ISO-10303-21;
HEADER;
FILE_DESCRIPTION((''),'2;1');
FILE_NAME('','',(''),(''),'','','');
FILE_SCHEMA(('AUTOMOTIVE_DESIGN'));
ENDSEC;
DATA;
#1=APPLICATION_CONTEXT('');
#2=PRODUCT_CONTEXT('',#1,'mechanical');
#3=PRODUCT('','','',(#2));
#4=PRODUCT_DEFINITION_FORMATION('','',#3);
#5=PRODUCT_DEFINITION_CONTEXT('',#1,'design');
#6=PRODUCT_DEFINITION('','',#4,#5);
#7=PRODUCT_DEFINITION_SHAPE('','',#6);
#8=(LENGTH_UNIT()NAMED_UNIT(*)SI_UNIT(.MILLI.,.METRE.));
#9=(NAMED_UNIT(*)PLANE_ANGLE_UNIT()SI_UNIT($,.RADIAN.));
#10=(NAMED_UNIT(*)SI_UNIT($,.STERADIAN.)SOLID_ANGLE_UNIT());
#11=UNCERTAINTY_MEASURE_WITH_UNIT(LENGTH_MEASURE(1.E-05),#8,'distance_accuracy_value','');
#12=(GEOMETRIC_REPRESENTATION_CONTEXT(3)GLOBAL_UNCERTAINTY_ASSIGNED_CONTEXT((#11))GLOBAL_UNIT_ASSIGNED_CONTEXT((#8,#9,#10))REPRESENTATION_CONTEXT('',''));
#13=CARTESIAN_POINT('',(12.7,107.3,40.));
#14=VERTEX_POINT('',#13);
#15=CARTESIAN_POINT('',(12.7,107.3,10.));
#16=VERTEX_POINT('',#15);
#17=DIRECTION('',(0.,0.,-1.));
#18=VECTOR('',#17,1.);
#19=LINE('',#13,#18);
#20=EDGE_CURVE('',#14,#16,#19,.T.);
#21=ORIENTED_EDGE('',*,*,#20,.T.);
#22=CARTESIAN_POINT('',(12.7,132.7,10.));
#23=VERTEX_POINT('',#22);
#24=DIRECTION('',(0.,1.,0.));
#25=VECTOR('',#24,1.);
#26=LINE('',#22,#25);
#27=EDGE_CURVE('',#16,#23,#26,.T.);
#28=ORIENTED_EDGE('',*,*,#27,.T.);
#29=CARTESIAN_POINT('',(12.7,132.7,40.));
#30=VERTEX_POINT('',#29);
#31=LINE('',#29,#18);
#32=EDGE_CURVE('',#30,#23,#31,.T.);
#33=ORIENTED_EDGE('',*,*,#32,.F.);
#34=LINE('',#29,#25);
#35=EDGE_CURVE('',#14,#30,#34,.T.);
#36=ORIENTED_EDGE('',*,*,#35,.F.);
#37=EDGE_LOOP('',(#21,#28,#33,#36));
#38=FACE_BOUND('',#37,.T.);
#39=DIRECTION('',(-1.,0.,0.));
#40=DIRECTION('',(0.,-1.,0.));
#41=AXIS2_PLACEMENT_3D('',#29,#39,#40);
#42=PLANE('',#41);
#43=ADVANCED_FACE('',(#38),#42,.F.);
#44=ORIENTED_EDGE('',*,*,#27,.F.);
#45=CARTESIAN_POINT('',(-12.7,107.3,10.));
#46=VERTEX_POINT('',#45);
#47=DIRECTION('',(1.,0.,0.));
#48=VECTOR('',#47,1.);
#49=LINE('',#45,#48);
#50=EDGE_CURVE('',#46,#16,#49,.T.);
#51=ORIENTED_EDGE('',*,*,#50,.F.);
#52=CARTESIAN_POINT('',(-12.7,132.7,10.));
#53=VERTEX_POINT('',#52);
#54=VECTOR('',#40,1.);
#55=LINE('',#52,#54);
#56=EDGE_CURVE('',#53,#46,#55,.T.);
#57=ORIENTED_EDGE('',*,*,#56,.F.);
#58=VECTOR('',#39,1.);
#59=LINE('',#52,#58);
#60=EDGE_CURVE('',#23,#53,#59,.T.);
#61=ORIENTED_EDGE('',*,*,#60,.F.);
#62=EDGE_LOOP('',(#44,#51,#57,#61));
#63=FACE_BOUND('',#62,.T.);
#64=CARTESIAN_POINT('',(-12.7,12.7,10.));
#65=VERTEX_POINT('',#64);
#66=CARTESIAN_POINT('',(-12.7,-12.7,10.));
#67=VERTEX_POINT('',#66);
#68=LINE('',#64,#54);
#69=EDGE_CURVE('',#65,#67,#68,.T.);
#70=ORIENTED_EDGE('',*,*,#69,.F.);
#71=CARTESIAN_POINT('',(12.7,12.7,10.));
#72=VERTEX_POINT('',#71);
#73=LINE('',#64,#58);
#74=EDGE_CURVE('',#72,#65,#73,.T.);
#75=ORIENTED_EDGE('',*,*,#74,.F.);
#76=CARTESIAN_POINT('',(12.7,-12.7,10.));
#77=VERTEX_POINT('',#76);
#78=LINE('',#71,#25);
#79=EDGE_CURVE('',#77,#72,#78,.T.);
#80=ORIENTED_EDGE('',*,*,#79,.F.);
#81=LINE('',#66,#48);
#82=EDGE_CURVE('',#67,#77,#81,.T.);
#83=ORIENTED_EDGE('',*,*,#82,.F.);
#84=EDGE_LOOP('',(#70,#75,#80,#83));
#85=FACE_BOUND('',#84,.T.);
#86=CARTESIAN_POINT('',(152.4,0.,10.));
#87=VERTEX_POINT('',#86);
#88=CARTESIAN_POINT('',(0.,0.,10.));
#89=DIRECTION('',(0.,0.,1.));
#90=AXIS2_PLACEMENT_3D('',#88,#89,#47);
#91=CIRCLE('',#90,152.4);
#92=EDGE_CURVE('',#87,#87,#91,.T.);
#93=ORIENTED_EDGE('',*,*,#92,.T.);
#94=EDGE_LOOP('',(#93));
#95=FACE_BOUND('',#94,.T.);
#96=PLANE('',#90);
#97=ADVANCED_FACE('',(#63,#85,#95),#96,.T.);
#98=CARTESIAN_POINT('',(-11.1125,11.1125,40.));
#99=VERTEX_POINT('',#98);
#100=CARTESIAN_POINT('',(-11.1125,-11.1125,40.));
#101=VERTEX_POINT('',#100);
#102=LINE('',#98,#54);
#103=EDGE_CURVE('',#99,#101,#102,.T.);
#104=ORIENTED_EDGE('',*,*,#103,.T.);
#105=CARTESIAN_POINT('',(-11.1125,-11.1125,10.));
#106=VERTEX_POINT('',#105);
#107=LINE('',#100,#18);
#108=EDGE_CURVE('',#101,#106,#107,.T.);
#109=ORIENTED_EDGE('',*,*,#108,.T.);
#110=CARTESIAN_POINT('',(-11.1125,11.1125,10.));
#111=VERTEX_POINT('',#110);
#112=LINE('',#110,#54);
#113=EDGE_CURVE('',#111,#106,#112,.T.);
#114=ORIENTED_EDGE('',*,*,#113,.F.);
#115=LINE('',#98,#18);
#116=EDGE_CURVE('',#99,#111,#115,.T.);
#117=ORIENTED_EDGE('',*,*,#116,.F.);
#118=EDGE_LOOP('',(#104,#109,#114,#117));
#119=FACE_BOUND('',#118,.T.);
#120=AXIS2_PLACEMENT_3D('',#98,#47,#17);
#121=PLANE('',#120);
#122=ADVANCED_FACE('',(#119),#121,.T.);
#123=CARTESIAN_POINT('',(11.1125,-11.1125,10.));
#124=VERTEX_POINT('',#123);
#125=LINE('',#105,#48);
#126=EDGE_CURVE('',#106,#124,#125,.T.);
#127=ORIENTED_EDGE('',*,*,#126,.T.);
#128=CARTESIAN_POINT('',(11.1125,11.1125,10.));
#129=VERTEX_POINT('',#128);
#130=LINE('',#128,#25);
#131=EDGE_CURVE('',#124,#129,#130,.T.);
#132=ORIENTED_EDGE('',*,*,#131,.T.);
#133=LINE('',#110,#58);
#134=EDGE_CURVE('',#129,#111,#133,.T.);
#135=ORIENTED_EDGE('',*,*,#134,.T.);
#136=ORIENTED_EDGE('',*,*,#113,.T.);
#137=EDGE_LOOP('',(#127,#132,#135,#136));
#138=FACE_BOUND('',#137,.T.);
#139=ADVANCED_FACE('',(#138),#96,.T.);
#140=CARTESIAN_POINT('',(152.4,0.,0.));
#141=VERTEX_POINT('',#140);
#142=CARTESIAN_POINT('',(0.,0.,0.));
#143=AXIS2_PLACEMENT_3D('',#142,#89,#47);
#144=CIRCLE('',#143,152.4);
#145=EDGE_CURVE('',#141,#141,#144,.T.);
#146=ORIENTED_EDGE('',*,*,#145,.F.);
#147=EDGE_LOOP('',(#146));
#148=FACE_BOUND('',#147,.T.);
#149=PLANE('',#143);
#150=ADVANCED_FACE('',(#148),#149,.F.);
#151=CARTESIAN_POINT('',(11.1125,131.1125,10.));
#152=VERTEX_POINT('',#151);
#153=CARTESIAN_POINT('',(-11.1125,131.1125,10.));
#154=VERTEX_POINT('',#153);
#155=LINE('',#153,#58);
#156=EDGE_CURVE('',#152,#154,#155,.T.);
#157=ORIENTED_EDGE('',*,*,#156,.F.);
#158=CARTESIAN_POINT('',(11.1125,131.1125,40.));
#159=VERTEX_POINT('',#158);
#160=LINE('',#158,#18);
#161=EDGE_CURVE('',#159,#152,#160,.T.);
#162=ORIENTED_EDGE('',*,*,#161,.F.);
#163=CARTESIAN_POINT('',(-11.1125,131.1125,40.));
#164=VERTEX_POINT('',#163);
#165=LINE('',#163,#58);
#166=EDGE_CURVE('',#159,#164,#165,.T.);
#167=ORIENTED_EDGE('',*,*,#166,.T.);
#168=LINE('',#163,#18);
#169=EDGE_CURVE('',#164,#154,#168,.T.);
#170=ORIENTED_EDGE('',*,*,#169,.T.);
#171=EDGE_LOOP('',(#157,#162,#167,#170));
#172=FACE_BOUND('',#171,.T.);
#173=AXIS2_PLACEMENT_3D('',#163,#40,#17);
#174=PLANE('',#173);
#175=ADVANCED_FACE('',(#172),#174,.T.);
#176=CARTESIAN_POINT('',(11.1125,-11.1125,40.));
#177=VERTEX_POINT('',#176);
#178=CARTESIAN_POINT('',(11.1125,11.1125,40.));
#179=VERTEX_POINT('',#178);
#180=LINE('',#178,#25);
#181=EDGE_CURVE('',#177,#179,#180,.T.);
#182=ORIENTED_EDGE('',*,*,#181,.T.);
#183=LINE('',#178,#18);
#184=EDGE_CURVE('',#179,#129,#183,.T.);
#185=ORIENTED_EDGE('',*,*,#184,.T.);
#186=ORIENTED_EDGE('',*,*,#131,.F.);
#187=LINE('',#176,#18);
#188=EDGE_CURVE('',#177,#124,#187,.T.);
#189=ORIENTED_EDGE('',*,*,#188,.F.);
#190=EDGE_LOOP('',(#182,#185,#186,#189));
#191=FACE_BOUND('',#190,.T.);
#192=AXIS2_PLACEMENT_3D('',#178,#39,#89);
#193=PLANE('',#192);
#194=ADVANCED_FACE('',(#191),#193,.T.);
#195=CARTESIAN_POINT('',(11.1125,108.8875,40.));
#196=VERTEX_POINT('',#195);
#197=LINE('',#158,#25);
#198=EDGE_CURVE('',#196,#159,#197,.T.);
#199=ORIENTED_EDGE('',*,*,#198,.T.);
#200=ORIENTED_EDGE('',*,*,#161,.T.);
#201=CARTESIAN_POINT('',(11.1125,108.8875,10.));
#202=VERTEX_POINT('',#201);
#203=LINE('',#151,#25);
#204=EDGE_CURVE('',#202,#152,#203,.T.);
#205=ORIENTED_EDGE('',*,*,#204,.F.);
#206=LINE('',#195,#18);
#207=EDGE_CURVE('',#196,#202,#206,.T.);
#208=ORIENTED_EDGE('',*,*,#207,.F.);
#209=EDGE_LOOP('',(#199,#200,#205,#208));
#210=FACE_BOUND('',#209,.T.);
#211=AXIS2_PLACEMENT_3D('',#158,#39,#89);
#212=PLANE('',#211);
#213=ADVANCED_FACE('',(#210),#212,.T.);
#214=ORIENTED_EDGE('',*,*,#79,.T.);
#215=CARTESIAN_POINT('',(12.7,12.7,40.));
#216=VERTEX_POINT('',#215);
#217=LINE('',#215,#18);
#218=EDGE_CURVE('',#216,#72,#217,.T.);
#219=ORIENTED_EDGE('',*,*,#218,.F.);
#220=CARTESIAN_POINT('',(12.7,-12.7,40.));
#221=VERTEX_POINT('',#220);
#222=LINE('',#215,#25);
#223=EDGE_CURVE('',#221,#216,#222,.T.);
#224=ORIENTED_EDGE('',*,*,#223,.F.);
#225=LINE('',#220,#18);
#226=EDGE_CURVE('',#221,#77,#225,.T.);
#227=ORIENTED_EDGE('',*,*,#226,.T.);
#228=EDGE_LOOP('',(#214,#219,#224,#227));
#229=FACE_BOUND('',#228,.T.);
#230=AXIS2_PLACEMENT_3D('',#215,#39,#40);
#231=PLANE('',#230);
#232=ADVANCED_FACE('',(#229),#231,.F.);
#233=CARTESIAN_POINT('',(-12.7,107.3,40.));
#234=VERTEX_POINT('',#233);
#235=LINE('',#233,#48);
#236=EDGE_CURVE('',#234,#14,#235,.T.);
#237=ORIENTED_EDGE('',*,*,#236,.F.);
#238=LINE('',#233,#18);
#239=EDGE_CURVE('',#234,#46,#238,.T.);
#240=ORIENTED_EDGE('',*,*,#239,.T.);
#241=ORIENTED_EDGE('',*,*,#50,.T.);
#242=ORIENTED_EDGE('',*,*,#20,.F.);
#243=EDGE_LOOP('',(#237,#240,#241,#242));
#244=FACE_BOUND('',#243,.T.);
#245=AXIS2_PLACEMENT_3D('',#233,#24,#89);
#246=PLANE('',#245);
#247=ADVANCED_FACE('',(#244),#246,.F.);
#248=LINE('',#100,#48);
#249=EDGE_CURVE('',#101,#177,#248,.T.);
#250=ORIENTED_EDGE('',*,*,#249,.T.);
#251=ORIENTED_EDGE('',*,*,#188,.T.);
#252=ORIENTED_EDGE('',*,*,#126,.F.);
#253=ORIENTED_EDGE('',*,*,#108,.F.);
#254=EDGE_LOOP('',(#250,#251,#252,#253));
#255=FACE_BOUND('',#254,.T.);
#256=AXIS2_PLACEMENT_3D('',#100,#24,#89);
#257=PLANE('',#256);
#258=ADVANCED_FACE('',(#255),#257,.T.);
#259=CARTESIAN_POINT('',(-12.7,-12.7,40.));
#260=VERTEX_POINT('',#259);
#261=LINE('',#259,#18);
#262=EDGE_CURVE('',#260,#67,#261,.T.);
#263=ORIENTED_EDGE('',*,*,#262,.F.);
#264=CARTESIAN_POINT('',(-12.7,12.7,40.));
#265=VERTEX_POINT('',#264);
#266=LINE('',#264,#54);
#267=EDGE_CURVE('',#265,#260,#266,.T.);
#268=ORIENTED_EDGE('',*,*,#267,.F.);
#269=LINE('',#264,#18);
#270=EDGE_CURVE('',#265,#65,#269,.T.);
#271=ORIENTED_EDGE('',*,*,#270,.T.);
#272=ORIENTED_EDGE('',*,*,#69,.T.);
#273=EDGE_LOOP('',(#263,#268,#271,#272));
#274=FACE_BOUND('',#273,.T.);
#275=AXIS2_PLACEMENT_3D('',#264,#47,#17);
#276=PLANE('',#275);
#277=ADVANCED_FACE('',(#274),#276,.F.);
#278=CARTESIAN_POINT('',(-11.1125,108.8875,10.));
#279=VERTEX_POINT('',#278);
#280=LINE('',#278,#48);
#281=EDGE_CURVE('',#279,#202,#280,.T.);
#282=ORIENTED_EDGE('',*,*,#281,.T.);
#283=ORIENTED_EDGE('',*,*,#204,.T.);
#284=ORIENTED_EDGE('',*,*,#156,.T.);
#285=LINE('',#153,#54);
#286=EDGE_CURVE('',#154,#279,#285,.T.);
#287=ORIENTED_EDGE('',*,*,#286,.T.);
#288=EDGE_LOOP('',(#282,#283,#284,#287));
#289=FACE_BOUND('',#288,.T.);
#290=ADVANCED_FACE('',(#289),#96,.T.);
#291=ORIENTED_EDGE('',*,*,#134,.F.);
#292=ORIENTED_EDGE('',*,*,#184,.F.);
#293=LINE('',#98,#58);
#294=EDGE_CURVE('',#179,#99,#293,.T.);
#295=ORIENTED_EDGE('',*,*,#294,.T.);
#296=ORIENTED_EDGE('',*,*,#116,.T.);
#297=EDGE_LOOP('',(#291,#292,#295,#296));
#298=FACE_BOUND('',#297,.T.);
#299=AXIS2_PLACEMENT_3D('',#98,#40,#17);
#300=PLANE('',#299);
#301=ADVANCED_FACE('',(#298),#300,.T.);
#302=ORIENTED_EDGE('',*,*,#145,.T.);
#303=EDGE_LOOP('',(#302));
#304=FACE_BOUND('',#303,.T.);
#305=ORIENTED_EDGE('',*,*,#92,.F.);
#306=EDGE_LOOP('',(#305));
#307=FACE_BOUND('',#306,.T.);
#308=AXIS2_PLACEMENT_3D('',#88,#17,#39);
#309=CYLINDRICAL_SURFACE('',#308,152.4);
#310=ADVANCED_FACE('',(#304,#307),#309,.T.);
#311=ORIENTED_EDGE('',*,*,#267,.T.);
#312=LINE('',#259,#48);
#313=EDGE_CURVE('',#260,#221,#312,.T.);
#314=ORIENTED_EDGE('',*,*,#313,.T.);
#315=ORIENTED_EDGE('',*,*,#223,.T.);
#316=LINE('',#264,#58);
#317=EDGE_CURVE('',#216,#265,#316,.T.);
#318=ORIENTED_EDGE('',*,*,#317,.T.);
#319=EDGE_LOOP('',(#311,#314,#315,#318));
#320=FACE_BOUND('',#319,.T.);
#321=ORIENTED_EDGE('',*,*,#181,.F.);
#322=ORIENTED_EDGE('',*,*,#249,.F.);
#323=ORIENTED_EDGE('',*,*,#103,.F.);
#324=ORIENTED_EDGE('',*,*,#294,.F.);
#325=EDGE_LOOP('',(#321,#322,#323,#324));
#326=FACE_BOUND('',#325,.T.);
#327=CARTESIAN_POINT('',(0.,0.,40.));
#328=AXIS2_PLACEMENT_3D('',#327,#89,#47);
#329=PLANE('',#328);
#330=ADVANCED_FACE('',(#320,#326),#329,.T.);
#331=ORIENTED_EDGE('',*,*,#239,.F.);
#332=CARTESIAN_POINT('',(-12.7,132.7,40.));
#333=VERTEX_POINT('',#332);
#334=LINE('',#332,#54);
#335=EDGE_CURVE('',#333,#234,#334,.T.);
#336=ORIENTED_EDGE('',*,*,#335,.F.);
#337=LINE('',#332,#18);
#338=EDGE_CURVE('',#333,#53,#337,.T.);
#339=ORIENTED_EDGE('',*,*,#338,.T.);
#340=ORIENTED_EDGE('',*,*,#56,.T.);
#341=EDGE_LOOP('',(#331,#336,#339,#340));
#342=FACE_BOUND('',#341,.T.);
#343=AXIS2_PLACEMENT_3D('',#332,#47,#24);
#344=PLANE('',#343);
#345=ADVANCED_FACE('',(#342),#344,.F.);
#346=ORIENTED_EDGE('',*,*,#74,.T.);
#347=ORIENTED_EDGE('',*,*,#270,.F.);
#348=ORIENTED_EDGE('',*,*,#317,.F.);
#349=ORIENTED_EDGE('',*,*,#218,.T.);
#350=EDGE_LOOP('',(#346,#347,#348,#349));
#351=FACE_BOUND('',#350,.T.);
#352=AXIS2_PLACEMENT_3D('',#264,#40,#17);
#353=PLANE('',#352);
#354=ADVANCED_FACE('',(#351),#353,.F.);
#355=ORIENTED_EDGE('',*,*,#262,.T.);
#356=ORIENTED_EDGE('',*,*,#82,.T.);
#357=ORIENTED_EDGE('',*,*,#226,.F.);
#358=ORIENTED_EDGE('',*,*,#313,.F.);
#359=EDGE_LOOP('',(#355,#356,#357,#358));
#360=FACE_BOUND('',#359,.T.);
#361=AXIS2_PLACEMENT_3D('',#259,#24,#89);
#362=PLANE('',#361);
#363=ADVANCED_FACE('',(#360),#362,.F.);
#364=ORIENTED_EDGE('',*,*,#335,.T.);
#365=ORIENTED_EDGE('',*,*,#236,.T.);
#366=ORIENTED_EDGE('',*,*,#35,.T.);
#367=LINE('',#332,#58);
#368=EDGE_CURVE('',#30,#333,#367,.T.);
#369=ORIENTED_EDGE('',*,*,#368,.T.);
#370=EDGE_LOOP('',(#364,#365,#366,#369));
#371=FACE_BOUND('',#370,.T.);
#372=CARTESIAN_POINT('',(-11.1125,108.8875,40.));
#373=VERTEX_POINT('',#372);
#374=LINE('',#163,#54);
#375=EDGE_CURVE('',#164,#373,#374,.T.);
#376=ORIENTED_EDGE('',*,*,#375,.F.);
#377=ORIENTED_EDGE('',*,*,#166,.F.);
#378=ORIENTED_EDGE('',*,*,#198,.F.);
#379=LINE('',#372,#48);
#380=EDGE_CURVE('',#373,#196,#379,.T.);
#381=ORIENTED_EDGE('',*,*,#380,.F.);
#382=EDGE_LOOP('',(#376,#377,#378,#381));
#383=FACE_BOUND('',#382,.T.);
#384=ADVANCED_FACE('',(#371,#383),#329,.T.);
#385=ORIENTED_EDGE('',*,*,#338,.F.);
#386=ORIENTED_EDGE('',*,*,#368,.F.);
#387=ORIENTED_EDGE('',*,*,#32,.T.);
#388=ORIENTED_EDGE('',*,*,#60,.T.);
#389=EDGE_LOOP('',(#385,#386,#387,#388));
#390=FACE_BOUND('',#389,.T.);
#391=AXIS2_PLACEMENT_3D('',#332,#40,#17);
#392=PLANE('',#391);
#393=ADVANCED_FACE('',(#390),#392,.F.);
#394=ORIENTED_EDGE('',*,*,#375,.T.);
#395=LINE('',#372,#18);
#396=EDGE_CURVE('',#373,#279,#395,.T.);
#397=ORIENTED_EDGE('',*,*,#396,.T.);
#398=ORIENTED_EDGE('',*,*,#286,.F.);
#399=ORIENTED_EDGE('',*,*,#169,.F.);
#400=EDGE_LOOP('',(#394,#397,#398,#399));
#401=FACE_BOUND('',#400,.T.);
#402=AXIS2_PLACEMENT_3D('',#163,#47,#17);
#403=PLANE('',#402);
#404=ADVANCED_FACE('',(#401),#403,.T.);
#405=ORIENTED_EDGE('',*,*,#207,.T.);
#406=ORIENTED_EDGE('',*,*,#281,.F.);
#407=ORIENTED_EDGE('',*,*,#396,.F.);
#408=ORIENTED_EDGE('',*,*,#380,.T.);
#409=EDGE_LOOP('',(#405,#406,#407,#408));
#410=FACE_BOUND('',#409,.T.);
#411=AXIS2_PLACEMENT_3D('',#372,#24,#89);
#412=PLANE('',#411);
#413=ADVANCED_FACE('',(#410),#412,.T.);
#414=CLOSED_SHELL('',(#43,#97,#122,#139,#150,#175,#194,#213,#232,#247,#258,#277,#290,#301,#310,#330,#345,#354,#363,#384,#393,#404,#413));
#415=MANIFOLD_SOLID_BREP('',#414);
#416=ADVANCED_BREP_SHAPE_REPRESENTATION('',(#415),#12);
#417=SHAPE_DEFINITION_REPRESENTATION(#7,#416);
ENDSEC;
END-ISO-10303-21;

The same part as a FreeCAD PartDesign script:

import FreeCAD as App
import Part
import Sketcher
from FreeCAD import Vector
Q = App.Units.Quantity

doc = App.newDocument("Part")
body = doc.addObject("PartDesign::Body", "Body")

sketch1 = body.newObject("Sketcher::SketchObject", "Sketch")
sketch1.AttachmentSupport = (doc.getObject("XY_Plane"), [""])
sketch1.MapMode = "FlatFace"
sketch1.addGeometry(Part.Circle(Vector(0, 0, 0), Vector(0, 0, 1), 152), False)
sketch1.addConstraint(Sketcher.Constraint("Coincident", 0, 3, -1, 1))
sketch1.addConstraint(Sketcher.Constraint("Diameter", 0, Q("12 in")))
pad1 = body.newObject("PartDesign::Pad", "Pad")
pad1.Profile = sketch1
pad1.Length = 10

sketch2 = body.newObject("Sketcher::SketchObject", "Sketch001")
sketch2.AttachmentSupport = (doc.getObject("XY_Plane"), [""])
sketch2.MapMode = "FlatFace"
sketch2.AttachmentOffset = App.Placement(Vector(0, 0, 10), App.Rotation())
sketch2.addGeometry(Part.LineSegment(Vector(-13, 13, 0), Vector(-13, -13, 0)), False)
sketch2.addGeometry(Part.LineSegment(Vector(-13, -13, 0), Vector(13, -13, 0)), False)
sketch2.addGeometry(Part.LineSegment(Vector(13, -13, 0), Vector(13, 13, 0)), False)
sketch2.addGeometry(Part.LineSegment(Vector(13, 13, 0), Vector(-13, 13, 0)), False)
sketch2.addGeometry(Part.LineSegment(Vector(11, -11, 0), Vector(-11, -11, 0)), False)
sketch2.addGeometry(Part.LineSegment(Vector(-11, -11, 0), Vector(-11, 11, 0)), False)
sketch2.addGeometry(Part.LineSegment(Vector(-11, 11, 0), Vector(11, 11, 0)), False)
sketch2.addGeometry(Part.LineSegment(Vector(11, 11, 0), Vector(11, -11, 0)), False)
sketch2.addGeometry(Part.LineSegment(Vector(-13, 133, 0), Vector(-13, 107, 0)), False)
sketch2.addGeometry(Part.LineSegment(Vector(-13, 107, 0), Vector(13, 107, 0)), False)
sketch2.addGeometry(Part.LineSegment(Vector(13, 107, 0), Vector(13, 133, 0)), False)
sketch2.addGeometry(Part.LineSegment(Vector(13, 133, 0), Vector(-13, 133, 0)), False)
sketch2.addGeometry(Part.LineSegment(Vector(11, 109, 0), Vector(-11, 109, 0)), False)
sketch2.addGeometry(Part.LineSegment(Vector(-11, 109, 0), Vector(-11, 131, 0)), False)
sketch2.addGeometry(Part.LineSegment(Vector(-11, 131, 0), Vector(11, 131, 0)), False)
sketch2.addGeometry(Part.LineSegment(Vector(11, 131, 0), Vector(11, 109, 0)), False)
sketch2.addConstraint(Sketcher.Constraint("Coincident", 0, 2, 1, 1))
sketch2.addConstraint(Sketcher.Constraint("Coincident", 1, 2, 2, 1))
sketch2.addConstraint(Sketcher.Constraint("Coincident", 2, 2, 3, 1))
sketch2.addConstraint(Sketcher.Constraint("Coincident", 3, 2, 0, 1))
sketch2.addConstraint(Sketcher.Constraint("Coincident", 4, 2, 5, 1))
sketch2.addConstraint(Sketcher.Constraint("Coincident", 5, 2, 6, 1))
sketch2.addConstraint(Sketcher.Constraint("Coincident", 6, 2, 7, 1))
sketch2.addConstraint(Sketcher.Constraint("Coincident", 7, 2, 4, 1))
sketch2.addConstraint(Sketcher.Constraint("Coincident", 8, 2, 9, 1))
sketch2.addConstraint(Sketcher.Constraint("Coincident", 9, 2, 10, 1))
sketch2.addConstraint(Sketcher.Constraint("Coincident", 10, 2, 11, 1))
sketch2.addConstraint(Sketcher.Constraint("Coincident", 11, 2, 8, 1))
sketch2.addConstraint(Sketcher.Constraint("Coincident", 12, 2, 13, 1))
sketch2.addConstraint(Sketcher.Constraint("Coincident", 13, 2, 14, 1))
sketch2.addConstraint(Sketcher.Constraint("Coincident", 14, 2, 15, 1))
sketch2.addConstraint(Sketcher.Constraint("Coincident", 15, 2, 12, 1))
sketch2.addConstraint(Sketcher.Constraint("Vertical", 0))
sketch2.addConstraint(Sketcher.Constraint("Horizontal", 1))
sketch2.addConstraint(Sketcher.Constraint("Vertical", 2))
sketch2.addConstraint(Sketcher.Constraint("Horizontal", 3))
sketch2.addConstraint(Sketcher.Constraint("Horizontal", 4))
sketch2.addConstraint(Sketcher.Constraint("Vertical", 5))
sketch2.addConstraint(Sketcher.Constraint("Horizontal", 6))
sketch2.addConstraint(Sketcher.Constraint("Vertical", 7))
sketch2.addConstraint(Sketcher.Constraint("Vertical", 8))
sketch2.addConstraint(Sketcher.Constraint("Horizontal", 9))
sketch2.addConstraint(Sketcher.Constraint("Vertical", 10))
sketch2.addConstraint(Sketcher.Constraint("Horizontal", 11))
sketch2.addConstraint(Sketcher.Constraint("Horizontal", 12))
sketch2.addConstraint(Sketcher.Constraint("Vertical", 13))
sketch2.addConstraint(Sketcher.Constraint("Horizontal", 14))
sketch2.addConstraint(Sketcher.Constraint("Vertical", 15))
sketch2.addConstraint(Sketcher.Constraint("Symmetric", 0, 2, 2, 2, -1, 1))
sketch2.addConstraint(Sketcher.Constraint("Symmetric", 4, 2, 6, 2, -1, 1))
sketch2.addConstraint(Sketcher.Constraint("Vertical", 3, 2, 8, 2))
sketch2.addConstraint(Sketcher.Constraint("Vertical", 2, 2, 9, 2))
sketch2.addConstraint(Sketcher.Constraint("Vertical", 5, 2, 12, 2))
sketch2.addConstraint(Sketcher.Constraint("Vertical", 7, 2, 14, 2))
sketch2.addConstraint(Sketcher.Constraint("Equal", 11, 0))
sketch2.addConstraint(Sketcher.Constraint("Equal", 14, 5))
sketch2.addConstraint(Sketcher.Constraint("Equal", 2, 8))
sketch2.addConstraint(Sketcher.Constraint("Equal", 7, 13))
sketch2.addConstraint(Sketcher.Constraint("DistanceX", 1, 1, 1, 2, Q("1 in")))
sketch2.addConstraint(Sketcher.Constraint("DistanceX", 4, 2, 4, 1, Q("0.875 in")))
sketch2.addConstraint(Sketcher.Constraint("DistanceY", 8, 2, 12, 2, Q("0.0625 in")))
sketch2.addConstraint(Sketcher.Constraint("DistanceY", -1, 1, 8, 2, Q("107.3 mm")))
pad2 = body.newObject("PartDesign::Pad", "Pad001")
pad2.Profile = sketch2
pad2.Length = 30

doc.recompute()
